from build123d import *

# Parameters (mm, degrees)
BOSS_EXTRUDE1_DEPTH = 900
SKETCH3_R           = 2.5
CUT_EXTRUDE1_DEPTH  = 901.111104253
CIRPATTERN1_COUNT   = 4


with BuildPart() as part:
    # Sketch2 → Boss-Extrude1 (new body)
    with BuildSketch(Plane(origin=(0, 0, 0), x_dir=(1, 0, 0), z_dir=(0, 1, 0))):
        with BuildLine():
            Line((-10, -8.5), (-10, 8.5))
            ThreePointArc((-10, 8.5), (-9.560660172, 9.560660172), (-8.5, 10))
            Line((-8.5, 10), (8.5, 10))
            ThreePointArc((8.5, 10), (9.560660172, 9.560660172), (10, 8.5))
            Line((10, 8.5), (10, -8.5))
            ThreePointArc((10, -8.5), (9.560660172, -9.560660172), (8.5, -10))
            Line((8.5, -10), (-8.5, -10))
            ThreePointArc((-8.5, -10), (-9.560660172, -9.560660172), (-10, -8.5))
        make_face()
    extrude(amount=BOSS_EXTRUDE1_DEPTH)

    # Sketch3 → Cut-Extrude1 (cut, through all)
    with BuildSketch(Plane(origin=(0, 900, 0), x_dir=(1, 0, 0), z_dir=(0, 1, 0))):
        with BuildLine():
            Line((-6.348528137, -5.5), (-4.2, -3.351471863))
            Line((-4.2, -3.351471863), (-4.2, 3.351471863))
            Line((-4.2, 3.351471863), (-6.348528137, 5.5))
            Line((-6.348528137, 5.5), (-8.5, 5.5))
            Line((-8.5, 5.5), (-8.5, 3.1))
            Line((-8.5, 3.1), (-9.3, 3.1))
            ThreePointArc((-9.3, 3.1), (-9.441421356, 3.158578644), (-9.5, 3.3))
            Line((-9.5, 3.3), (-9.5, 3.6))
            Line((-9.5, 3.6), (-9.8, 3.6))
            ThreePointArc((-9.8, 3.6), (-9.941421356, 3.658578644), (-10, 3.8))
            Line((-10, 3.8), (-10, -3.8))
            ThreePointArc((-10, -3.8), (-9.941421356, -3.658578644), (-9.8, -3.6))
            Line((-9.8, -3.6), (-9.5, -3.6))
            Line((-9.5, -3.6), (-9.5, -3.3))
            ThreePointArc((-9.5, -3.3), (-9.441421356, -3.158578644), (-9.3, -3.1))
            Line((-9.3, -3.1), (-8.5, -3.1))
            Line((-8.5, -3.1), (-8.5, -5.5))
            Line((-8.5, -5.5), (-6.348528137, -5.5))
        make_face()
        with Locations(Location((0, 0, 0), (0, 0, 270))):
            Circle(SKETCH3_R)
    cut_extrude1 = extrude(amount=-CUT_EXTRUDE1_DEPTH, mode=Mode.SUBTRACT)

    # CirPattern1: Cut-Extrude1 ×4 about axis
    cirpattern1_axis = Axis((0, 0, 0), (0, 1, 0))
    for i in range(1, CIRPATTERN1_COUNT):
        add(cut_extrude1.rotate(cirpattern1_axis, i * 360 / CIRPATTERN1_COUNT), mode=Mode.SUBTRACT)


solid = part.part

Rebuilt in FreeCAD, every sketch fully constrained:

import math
import FreeCAD as App
import Part
import Sketcher

V = App.Vector

doc = App.newDocument("Part")
body = doc.addObject("PartDesign::Body", "Body")

sketch1 = doc.addObject("Sketcher::SketchObject", "Sketch")
body.addObject(sketch1)
sketch1.AttachmentSupport = (doc.XZ_Plane, [""])
sketch1.MapMode = "FlatFace"
sketch1.addGeometry([
    Part.LineSegment(V(-10, -8.5, 0), V(-10, 8.5, 0)),
    Part.ArcOfCircle(Part.Circle(V(-8.5, 8.5, 0), V(0, 0, 1), 1.5), math.radians(90), math.radians(180)),
    Part.LineSegment(V(-8.5, 10, 0), V(8.5, 10, 0)),
    Part.ArcOfCircle(Part.Circle(V(8.5, 8.5, 0), V(0, 0, 1), 1.5), math.radians(0), math.radians(90)),
    Part.LineSegment(V(10, 8.5, 0), V(10, -8.5, 0)),
    Part.ArcOfCircle(Part.Circle(V(8.5, -8.5, 0), V(0, 0, 1), 1.5), math.radians(-90), math.radians(0)),
    Part.LineSegment(V(8.5, -10, 0), V(-8.5, -10, 0)),
    Part.ArcOfCircle(Part.Circle(V(-8.5, -8.5, 0), V(0, 0, 1), 1.5), math.radians(180), math.radians(270)),
], False)
sketch1.addConstraint([
    Sketcher.Constraint("Tangent", 0, 2, 1, 2),
    Sketcher.Constraint("Tangent", 1, 1, 2, 1),
    Sketcher.Constraint("Tangent", 2, 2, 3, 2),
    Sketcher.Constraint("Tangent", 3, 1, 4, 1),
    Sketcher.Constraint("Tangent", 4, 2, 5, 2),
    Sketcher.Constraint("Tangent", 5, 1, 6, 1),
    Sketcher.Constraint("Tangent", 6, 2, 7, 2),
    Sketcher.Constraint("Tangent", 7, 1, 0, 1),
    Sketcher.Constraint("Vertical", 0),
    Sketcher.Constraint("Horizontal", 2),
    Sketcher.Constraint("Vertical", 4),
    Sketcher.Constraint("Horizontal", 6),
    Sketcher.Constraint("Equal", 1, 3),
    Sketcher.Constraint("Equal", 3, 5),
    Sketcher.Constraint("Equal", 5, 7),
    Sketcher.Constraint("Symmetric", 1, 3, 5, 3, -1, 1),
    Sketcher.Constraint("Equal", 6, 0),
    Sketcher.Constraint("Radius", 1, 1.5),
    Sketcher.Constraint("DistanceX", 2, 1, 2, 2, 17.0),
])
pad1 = doc.addObject("PartDesign::Pad", "Pad")
body.addObject(pad1)
pad1.Profile = sketch1
pad1.Length = 900
pad1.Reversed = True

sketch2 = doc.addObject("Sketcher::SketchObject", "Sketch001")
body.addObject(sketch2)
sketch2.AttachmentSupport = (doc.XZ_Plane, [""])
sketch2.MapMode = "FlatFace"
sketch2.AttachmentOffset = App.Placement(V(0, 0, -900), App.Rotation())
sketch2.addGeometry([
    Part.LineSegment(V(-6.35, 5.5, 0), V(-4.2, 3.35, 0)),
    Part.LineSegment(V(-4.2, 3.35, 0), V(-4.2, -3.35, 0)),
    Part.LineSegment(V(-4.2, -3.35, 0), V(-6.35, -5.5, 0)),
    Part.LineSegment(V(-6.35, -5.5, 0), V(-8.5, -5.5, 0)),
    Part.LineSegment(V(-8.5, -5.5, 0), V(-8.5, -3.1, 0)),
    Part.LineSegment(V(-8.5, -3.1, 0), V(-9.3, -3.1, 0)),
    Part.ArcOfCircle(Part.Circle(V(-9.3, -3.3, 0), V(0, 0, 1), 0.2), math.radians(90), math.radians(180)),
    Part.LineSegment(V(-9.5, -3.3, 0), V(-9.5, -3.6, 0)),
    Part.LineSegment(V(-9.5, -3.6, 0), V(-9.8, -3.6, 0)),
    Part.ArcOfCircle(Part.Circle(V(-9.8, -3.8, 0), V(0, 0, 1), 0.2), math.radians(90), math.radians(180)),
    Part.LineSegment(V(-10, -3.8, 0), V(-10, 3.8, 0)),
    Part.ArcOfCircle(Part.Circle(V(-9.8, 3.8, 0), V(0, 0, 1), 0.2), math.radians(-180), math.radians(-90)),
    Part.LineSegment(V(-9.8, 3.6, 0), V(-9.5, 3.6, 0)),
    Part.LineSegment(V(-9.5, 3.6, 0), V(-9.5, 3.3, 0)),
    Part.ArcOfCircle(Part.Circle(V(-9.3, 3.3, 0), V(0, 0, 1), 0.2), math.radians(-180), math.radians(-90)),
    Part.LineSegment(V(-9.3, 3.1, 0), V(-8.5, 3.1, 0)),
    Part.LineSegment(V(-8.5, 3.1, 0), V(-8.5, 5.5, 0)),
    Part.LineSegment(V(-8.5, 5.5, 0), V(-6.35, 5.5, 0)),
    Part.Circle(V(0, 0, 0), V(0, 0, 1), 2.5),
], False)
sketch2.addConstraint([
    Sketcher.Constraint("Coincident", 0, 2, 1, 1),
    Sketcher.Constraint("Coincident", 1, 2, 2, 1),
    Sketcher.Constraint("Coincident", 2, 2, 3, 1),
    Sketcher.Constraint("Coincident", 3, 2, 4, 1),
    Sketcher.Constraint("Coincident", 4, 2, 5, 1),
    Sketcher.Constraint("Tangent", 5, 2, 6, 1),
    Sketcher.Constraint("Tangent", 6, 2, 7, 1),
    Sketcher.Constraint("Coincident", 7, 2, 8, 1),
    Sketcher.Constraint("Tangent", 8, 2, 9, 1),
    Sketcher.Constraint("Tangent", 9, 2, 10, 1),
    Sketcher.Constraint("Tangent", 10, 2, 11, 1),
    Sketcher.Constraint("Tangent", 11, 2, 12, 1),
    Sketcher.Constraint("Coincident", 12, 2, 13, 1),
    Sketcher.Constraint("Tangent", 13, 2, 14, 1),
    Sketcher.Constraint("Tangent", 14, 2, 15, 1),
    Sketcher.Constraint("Coincident", 15, 2, 16, 1),
    Sketcher.Constraint("Coincident", 16, 2, 17, 1),
    Sketcher.Constraint("Coincident", 17, 2, 0, 1),
    Sketcher.Constraint("Vertical", 1),
    Sketcher.Constraint("Horizontal", 3),
    Sketcher.Constraint("Vertical", 4),
    Sketcher.Constraint("Horizontal", 5),
    Sketcher.Constraint("Vertical", 7),
    Sketcher.Constraint("Horizontal", 8),
    Sketcher.Constraint("Vertical", 10),
    Sketcher.Constraint("Horizontal", 12),
    Sketcher.Constraint("Vertical", 13),
    Sketcher.Constraint("Horizontal", 15),
    Sketcher.Constraint("Vertical", 16),
    Sketcher.Constraint("Horizontal", 17),
    Sketcher.Constraint("Coincident", 18, 3, -1, 1),
    Sketcher.Constraint("Equal", 6, 9),
    Sketcher.Constraint("Equal", 9, 11),
    Sketcher.Constraint("Equal", 11, 14),
    Sketcher.Constraint("Symmetric", 6, 3, 14, 3, -1),
    Sketcher.Constraint("Symmetric", 3, 2, 16, 2, -1),
    Sketcher.Constraint("Perpendicular", 0, 2),
    Sketcher.Constraint("Vertical", 2, 2, 17, 2),
    Sketcher.Constraint("Equal", 12, 7),
    Sketcher.Constraint("Equal", 7, 13),
    Sketcher.Constraint("Equal", 0, 2),
    Sketcher.Constraint("Diameter", 18, 5.0),
    Sketcher.Constraint("Radius", 6, 0.2),
    Sketcher.Constraint("DistanceX", 5, 2, 5, 1, 0.8),
    Sketcher.Constraint("DistanceX", 8, 2, 8, 1, 0.3),
    Sketcher.Constraint("DistanceY", 4, 1, 4, 2, 2.4),
    Sketcher.Constraint("DistanceY", 10, 1, 10, 2, 7.6),
    Sketcher.Constraint("DistanceX", 9, 2, -1, 1, 10.0),
    Sketcher.Constraint("DistanceX", 0, 2, -1, 1, 4.2),
    Sketcher.Constraint("DistanceX", 3, 2, 3, 1, 2.151472),
])
pocket1 = doc.addObject("PartDesign::Pocket", "Pocket")
body.addObject(pocket1)
pocket1.Profile = sketch2
pocket1.Type = "ThroughAll"
pocket1.Reversed = True
doc.recompute()

polarpattern = doc.addObject("PartDesign::PolarPattern", "PolarPattern")
body.addObject(polarpattern)
polarpattern.Originals = [pocket1]
polarpattern.Axis = (doc.Y_Axis, [""])
polarpattern.Angle = 360
polarpattern.Occurrences = 4
body.Tip = polarpattern

doc.recompute()
